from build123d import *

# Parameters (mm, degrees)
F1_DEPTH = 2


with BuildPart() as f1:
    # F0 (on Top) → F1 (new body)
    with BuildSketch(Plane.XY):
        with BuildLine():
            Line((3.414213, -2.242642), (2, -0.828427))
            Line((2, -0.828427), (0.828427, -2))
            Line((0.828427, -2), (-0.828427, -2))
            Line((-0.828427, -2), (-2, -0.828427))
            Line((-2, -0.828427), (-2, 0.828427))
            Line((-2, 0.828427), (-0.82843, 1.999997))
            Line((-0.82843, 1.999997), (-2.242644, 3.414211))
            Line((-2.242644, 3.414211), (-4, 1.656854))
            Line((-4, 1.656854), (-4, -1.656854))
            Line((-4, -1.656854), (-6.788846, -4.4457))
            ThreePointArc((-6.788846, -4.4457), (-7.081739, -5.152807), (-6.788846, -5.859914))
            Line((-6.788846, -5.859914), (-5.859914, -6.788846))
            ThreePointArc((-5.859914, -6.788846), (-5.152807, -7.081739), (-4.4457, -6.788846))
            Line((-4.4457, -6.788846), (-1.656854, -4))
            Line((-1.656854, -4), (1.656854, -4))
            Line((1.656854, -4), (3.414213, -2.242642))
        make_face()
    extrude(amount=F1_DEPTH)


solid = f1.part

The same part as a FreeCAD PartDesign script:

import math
import FreeCAD as App
import Part
import Sketcher
from FreeCAD import Vector

doc = App.newDocument("Part")
params = doc.addObject("Spreadsheet::Sheet", "Params")
for row, (alias, value) in enumerate([
    ("sketch1_radius", "1.000001 mm"),
    ("sketch1_length", "2.000001 mm"),
    ("pad1_length", "2 mm"),
], start=1):
    params.set(f"A{row}", alias)
    params.set(f"B{row}", "=" + value)
    params.setAlias(f"B{row}", alias)

body = doc.addObject("PartDesign::Body", "Body")

# Sketch on XY plane
sketch1 = doc.addObject("Sketcher::SketchObject", "Sketch")
body.addObject(sketch1)
sketch1.AttachmentSupport = (doc.XY_Plane, [""])
sketch1.MapMode = "FlatFace"
sketch1.addGeometry(Part.LineSegment(Vector(3.414213, -2.242642, 0), Vector(2, -0.828427, 0)), False)
sketch1.addGeometry(Part.LineSegment(Vector(2, -0.828427, 0), Vector(0.828427, -2, 0)), False)
sketch1.addGeometry(Part.LineSegment(Vector(0.828427, -2, 0), Vector(-0.828427, -2, 0)), False)
sketch1.addGeometry(Part.LineSegment(Vector(-0.828427, -2, 0), Vector(-2, -0.828427, 0)), False)
sketch1.addGeometry(Part.LineSegment(Vector(-2, -0.828427, 0), Vector(-2, 0.828427, 0)), False)
sketch1.addGeometry(Part.LineSegment(Vector(-2, 0.828427, 0), Vector(-0.82843, 1.999997, 0)), False)
sketch1.addGeometry(Part.LineSegment(Vector(-0.82843, 1.999997, 0), Vector(-2.242644, 3.414211, 0)), False)
sketch1.addGeometry(Part.LineSegment(Vector(-2.242644, 3.414211, 0), Vector(-4, 1.656854, 0)), False)
sketch1.addGeometry(Part.LineSegment(Vector(-4, 1.656854, 0), Vector(-4, -1.656854, 0)), False)
sketch1.addGeometry(Part.LineSegment(Vector(-4, -1.656854, 0), Vector(-6.788846, -4.4457, 0)), False)
sketch1.addGeometry(Part.ArcOfCircle(Part.Circle(Vector(-6.081738, -5.152807, 0), Vector(0, 0, 1), 1.000001), math.radians(135.000043), math.radians(224.999957)), False)
sketch1.addGeometry(Part.LineSegment(Vector(-6.788846, -5.859914, 0), Vector(-5.859914, -6.788846, 0)), False)
sketch1.addGeometry(Part.ArcOfCircle(Part.Circle(Vector(-5.152807, -6.081738, 0), Vector(0, 0, 1), 1.000001), math.radians(-134.999957), math.radians(-45.000043)), False)
sketch1.addGeometry(Part.LineSegment(Vector(-4.4457, -6.788846, 0), Vector(-1.656854, -4, 0)), False)
sketch1.addGeometry(Part.LineSegment(Vector(-1.656854, -4, 0), Vector(1.656854, -4, 0)), False)
sketch1.addGeometry(Part.LineSegment(Vector(1.656854, -4, 0), Vector(3.414213, -2.242642, 0)), False)
sketch1.addConstraint(Sketcher.Constraint("Coincident", 0, 2, 1, 1))
sketch1.addConstraint(Sketcher.Constraint("Coincident", 1, 2, 2, 1))
sketch1.addConstraint(Sketcher.Constraint("Coincident", 2, 2, 3, 1))
sketch1.addConstraint(Sketcher.Constraint("Coincident", 3, 2, 4, 1))
sketch1.addConstraint(Sketcher.Constraint("Coincident", 4, 2, 5, 1))
sketch1.addConstraint(Sketcher.Constraint("Coincident", 5, 2, 6, 1))
sketch1.addConstraint(Sketcher.Constraint("Coincident", 6, 2, 7, 1))
sketch1.addConstraint(Sketcher.Constraint("Coincident", 7, 2, 8, 1))
sketch1.addConstraint(Sketcher.Constraint("Coincident", 8, 2, 9, 1))
sketch1.addConstraint(Sketcher.Constraint("Tangent", 9, 2, 10, 1))
sketch1.addConstraint(Sketcher.Constraint("Tangent", 10, 2, 11, 1))
sketch1.addConstraint(Sketcher.Constraint("Tangent", 11, 2, 12, 1))
sketch1.addConstraint(Sketcher.Constraint("Tangent", 12, 2, 13, 1))
sketch1.addConstraint(Sketcher.Constraint("Coincident", 13, 2, 14, 1))
sketch1.addConstraint(Sketcher.Constraint("Coincident", 14, 2, 15, 1))
sketch1.addConstraint(Sketcher.Constraint("Coincident", 15, 2, 0, 1))
sketch1.addConstraint(Sketcher.Constraint("Horizontal", 2))
sketch1.addConstraint(Sketcher.Constraint("Vertical", 4))
sketch1.addConstraint(Sketcher.Constraint("Vertical", 8))
sketch1.addConstraint(Sketcher.Constraint("Horizontal", 14))
sketch1.addConstraint(Sketcher.Constraint("Equal", 10, 12))
sketch1.addConstraint(Sketcher.Constraint("Symmetric", 0, 2, 4, 2, -1, 1))
sketch1.addConstraint(Sketcher.Constraint("Symmetric", 1, 2, 5, 2, -1, 1))
sketch1.addConstraint(Sketcher.Constraint("Perpendicular", 0, 1))
sketch1.addConstraint(Sketcher.Constraint("Perpendicular", 1, 3))
sketch1.addConstraint(Sketcher.Constraint("Perpendicular", 5, 6))
sketch1.addConstraint(Sketcher.Constraint("Perpendicular", 6, 7))
sketch1.addConstraint(Sketcher.Constraint("Parallel", 7, 9))
sketch1.addConstraint(Sketcher.Constraint("Perpendicular", 9, 11))
sketch1.addConstraint(Sketcher.Constraint("Perpendicular", 11, 13))
sketch1.addConstraint(Sketcher.Constraint("Parallel", 13, 15))
sketch1.addConstraint(Sketcher.Constraint("Horizontal", 0, 2, 3, 2))
sketch1.addConstraint(Sketcher.Constraint("Horizontal", 11, 2, 12, 2))
sketch1.addConstraint(Sketcher.Constraint("Equal", 2, 4))
sketch1.addConstraint(Sketcher.Constraint("Equal", 14, 8))
sketch1.addConstraint(Sketcher.Constraint("Equal", 0, 6))
sketch1.addConstraint(Sketcher.Constraint("Equal", 9, 13))
sketch1.addConstraint(Sketcher.Constraint("Radius", 10, 1.000001))
sketch1.addConstraint(Sketcher.Constraint("Distance", 0, 2.000001))
sketch1.addConstraint(Sketcher.Constraint("DistanceX", -1, 1, 0, 2, 2.0))
sketch1.addConstraint(Sketcher.Constraint("DistanceX", 7, 2, -1, 1, 4.0))
sketch1.addConstraint(Sketcher.Constraint("DistanceX", 14, 1, 14, 2, 3.313708))
sketch1.addConstraint(Sketcher.Constraint("DistanceY", 9, 2, -1, 1, 4.4457))
sketch1.addConstraint(Sketcher.Constraint("Distance", 5, 1.65685))
sketch1.setExpression("Constraints[37]", "Params.sketch1_radius")
sketch1.setExpression("Constraints[38]", "Params.sketch1_length")
pad1 = doc.addObject("PartDesign::Pad", "Pad")
body.addObject(pad1)
pad1.Profile = sketch1
pad1.setExpression("Length", "Params.pad1_length")

doc.recompute()
